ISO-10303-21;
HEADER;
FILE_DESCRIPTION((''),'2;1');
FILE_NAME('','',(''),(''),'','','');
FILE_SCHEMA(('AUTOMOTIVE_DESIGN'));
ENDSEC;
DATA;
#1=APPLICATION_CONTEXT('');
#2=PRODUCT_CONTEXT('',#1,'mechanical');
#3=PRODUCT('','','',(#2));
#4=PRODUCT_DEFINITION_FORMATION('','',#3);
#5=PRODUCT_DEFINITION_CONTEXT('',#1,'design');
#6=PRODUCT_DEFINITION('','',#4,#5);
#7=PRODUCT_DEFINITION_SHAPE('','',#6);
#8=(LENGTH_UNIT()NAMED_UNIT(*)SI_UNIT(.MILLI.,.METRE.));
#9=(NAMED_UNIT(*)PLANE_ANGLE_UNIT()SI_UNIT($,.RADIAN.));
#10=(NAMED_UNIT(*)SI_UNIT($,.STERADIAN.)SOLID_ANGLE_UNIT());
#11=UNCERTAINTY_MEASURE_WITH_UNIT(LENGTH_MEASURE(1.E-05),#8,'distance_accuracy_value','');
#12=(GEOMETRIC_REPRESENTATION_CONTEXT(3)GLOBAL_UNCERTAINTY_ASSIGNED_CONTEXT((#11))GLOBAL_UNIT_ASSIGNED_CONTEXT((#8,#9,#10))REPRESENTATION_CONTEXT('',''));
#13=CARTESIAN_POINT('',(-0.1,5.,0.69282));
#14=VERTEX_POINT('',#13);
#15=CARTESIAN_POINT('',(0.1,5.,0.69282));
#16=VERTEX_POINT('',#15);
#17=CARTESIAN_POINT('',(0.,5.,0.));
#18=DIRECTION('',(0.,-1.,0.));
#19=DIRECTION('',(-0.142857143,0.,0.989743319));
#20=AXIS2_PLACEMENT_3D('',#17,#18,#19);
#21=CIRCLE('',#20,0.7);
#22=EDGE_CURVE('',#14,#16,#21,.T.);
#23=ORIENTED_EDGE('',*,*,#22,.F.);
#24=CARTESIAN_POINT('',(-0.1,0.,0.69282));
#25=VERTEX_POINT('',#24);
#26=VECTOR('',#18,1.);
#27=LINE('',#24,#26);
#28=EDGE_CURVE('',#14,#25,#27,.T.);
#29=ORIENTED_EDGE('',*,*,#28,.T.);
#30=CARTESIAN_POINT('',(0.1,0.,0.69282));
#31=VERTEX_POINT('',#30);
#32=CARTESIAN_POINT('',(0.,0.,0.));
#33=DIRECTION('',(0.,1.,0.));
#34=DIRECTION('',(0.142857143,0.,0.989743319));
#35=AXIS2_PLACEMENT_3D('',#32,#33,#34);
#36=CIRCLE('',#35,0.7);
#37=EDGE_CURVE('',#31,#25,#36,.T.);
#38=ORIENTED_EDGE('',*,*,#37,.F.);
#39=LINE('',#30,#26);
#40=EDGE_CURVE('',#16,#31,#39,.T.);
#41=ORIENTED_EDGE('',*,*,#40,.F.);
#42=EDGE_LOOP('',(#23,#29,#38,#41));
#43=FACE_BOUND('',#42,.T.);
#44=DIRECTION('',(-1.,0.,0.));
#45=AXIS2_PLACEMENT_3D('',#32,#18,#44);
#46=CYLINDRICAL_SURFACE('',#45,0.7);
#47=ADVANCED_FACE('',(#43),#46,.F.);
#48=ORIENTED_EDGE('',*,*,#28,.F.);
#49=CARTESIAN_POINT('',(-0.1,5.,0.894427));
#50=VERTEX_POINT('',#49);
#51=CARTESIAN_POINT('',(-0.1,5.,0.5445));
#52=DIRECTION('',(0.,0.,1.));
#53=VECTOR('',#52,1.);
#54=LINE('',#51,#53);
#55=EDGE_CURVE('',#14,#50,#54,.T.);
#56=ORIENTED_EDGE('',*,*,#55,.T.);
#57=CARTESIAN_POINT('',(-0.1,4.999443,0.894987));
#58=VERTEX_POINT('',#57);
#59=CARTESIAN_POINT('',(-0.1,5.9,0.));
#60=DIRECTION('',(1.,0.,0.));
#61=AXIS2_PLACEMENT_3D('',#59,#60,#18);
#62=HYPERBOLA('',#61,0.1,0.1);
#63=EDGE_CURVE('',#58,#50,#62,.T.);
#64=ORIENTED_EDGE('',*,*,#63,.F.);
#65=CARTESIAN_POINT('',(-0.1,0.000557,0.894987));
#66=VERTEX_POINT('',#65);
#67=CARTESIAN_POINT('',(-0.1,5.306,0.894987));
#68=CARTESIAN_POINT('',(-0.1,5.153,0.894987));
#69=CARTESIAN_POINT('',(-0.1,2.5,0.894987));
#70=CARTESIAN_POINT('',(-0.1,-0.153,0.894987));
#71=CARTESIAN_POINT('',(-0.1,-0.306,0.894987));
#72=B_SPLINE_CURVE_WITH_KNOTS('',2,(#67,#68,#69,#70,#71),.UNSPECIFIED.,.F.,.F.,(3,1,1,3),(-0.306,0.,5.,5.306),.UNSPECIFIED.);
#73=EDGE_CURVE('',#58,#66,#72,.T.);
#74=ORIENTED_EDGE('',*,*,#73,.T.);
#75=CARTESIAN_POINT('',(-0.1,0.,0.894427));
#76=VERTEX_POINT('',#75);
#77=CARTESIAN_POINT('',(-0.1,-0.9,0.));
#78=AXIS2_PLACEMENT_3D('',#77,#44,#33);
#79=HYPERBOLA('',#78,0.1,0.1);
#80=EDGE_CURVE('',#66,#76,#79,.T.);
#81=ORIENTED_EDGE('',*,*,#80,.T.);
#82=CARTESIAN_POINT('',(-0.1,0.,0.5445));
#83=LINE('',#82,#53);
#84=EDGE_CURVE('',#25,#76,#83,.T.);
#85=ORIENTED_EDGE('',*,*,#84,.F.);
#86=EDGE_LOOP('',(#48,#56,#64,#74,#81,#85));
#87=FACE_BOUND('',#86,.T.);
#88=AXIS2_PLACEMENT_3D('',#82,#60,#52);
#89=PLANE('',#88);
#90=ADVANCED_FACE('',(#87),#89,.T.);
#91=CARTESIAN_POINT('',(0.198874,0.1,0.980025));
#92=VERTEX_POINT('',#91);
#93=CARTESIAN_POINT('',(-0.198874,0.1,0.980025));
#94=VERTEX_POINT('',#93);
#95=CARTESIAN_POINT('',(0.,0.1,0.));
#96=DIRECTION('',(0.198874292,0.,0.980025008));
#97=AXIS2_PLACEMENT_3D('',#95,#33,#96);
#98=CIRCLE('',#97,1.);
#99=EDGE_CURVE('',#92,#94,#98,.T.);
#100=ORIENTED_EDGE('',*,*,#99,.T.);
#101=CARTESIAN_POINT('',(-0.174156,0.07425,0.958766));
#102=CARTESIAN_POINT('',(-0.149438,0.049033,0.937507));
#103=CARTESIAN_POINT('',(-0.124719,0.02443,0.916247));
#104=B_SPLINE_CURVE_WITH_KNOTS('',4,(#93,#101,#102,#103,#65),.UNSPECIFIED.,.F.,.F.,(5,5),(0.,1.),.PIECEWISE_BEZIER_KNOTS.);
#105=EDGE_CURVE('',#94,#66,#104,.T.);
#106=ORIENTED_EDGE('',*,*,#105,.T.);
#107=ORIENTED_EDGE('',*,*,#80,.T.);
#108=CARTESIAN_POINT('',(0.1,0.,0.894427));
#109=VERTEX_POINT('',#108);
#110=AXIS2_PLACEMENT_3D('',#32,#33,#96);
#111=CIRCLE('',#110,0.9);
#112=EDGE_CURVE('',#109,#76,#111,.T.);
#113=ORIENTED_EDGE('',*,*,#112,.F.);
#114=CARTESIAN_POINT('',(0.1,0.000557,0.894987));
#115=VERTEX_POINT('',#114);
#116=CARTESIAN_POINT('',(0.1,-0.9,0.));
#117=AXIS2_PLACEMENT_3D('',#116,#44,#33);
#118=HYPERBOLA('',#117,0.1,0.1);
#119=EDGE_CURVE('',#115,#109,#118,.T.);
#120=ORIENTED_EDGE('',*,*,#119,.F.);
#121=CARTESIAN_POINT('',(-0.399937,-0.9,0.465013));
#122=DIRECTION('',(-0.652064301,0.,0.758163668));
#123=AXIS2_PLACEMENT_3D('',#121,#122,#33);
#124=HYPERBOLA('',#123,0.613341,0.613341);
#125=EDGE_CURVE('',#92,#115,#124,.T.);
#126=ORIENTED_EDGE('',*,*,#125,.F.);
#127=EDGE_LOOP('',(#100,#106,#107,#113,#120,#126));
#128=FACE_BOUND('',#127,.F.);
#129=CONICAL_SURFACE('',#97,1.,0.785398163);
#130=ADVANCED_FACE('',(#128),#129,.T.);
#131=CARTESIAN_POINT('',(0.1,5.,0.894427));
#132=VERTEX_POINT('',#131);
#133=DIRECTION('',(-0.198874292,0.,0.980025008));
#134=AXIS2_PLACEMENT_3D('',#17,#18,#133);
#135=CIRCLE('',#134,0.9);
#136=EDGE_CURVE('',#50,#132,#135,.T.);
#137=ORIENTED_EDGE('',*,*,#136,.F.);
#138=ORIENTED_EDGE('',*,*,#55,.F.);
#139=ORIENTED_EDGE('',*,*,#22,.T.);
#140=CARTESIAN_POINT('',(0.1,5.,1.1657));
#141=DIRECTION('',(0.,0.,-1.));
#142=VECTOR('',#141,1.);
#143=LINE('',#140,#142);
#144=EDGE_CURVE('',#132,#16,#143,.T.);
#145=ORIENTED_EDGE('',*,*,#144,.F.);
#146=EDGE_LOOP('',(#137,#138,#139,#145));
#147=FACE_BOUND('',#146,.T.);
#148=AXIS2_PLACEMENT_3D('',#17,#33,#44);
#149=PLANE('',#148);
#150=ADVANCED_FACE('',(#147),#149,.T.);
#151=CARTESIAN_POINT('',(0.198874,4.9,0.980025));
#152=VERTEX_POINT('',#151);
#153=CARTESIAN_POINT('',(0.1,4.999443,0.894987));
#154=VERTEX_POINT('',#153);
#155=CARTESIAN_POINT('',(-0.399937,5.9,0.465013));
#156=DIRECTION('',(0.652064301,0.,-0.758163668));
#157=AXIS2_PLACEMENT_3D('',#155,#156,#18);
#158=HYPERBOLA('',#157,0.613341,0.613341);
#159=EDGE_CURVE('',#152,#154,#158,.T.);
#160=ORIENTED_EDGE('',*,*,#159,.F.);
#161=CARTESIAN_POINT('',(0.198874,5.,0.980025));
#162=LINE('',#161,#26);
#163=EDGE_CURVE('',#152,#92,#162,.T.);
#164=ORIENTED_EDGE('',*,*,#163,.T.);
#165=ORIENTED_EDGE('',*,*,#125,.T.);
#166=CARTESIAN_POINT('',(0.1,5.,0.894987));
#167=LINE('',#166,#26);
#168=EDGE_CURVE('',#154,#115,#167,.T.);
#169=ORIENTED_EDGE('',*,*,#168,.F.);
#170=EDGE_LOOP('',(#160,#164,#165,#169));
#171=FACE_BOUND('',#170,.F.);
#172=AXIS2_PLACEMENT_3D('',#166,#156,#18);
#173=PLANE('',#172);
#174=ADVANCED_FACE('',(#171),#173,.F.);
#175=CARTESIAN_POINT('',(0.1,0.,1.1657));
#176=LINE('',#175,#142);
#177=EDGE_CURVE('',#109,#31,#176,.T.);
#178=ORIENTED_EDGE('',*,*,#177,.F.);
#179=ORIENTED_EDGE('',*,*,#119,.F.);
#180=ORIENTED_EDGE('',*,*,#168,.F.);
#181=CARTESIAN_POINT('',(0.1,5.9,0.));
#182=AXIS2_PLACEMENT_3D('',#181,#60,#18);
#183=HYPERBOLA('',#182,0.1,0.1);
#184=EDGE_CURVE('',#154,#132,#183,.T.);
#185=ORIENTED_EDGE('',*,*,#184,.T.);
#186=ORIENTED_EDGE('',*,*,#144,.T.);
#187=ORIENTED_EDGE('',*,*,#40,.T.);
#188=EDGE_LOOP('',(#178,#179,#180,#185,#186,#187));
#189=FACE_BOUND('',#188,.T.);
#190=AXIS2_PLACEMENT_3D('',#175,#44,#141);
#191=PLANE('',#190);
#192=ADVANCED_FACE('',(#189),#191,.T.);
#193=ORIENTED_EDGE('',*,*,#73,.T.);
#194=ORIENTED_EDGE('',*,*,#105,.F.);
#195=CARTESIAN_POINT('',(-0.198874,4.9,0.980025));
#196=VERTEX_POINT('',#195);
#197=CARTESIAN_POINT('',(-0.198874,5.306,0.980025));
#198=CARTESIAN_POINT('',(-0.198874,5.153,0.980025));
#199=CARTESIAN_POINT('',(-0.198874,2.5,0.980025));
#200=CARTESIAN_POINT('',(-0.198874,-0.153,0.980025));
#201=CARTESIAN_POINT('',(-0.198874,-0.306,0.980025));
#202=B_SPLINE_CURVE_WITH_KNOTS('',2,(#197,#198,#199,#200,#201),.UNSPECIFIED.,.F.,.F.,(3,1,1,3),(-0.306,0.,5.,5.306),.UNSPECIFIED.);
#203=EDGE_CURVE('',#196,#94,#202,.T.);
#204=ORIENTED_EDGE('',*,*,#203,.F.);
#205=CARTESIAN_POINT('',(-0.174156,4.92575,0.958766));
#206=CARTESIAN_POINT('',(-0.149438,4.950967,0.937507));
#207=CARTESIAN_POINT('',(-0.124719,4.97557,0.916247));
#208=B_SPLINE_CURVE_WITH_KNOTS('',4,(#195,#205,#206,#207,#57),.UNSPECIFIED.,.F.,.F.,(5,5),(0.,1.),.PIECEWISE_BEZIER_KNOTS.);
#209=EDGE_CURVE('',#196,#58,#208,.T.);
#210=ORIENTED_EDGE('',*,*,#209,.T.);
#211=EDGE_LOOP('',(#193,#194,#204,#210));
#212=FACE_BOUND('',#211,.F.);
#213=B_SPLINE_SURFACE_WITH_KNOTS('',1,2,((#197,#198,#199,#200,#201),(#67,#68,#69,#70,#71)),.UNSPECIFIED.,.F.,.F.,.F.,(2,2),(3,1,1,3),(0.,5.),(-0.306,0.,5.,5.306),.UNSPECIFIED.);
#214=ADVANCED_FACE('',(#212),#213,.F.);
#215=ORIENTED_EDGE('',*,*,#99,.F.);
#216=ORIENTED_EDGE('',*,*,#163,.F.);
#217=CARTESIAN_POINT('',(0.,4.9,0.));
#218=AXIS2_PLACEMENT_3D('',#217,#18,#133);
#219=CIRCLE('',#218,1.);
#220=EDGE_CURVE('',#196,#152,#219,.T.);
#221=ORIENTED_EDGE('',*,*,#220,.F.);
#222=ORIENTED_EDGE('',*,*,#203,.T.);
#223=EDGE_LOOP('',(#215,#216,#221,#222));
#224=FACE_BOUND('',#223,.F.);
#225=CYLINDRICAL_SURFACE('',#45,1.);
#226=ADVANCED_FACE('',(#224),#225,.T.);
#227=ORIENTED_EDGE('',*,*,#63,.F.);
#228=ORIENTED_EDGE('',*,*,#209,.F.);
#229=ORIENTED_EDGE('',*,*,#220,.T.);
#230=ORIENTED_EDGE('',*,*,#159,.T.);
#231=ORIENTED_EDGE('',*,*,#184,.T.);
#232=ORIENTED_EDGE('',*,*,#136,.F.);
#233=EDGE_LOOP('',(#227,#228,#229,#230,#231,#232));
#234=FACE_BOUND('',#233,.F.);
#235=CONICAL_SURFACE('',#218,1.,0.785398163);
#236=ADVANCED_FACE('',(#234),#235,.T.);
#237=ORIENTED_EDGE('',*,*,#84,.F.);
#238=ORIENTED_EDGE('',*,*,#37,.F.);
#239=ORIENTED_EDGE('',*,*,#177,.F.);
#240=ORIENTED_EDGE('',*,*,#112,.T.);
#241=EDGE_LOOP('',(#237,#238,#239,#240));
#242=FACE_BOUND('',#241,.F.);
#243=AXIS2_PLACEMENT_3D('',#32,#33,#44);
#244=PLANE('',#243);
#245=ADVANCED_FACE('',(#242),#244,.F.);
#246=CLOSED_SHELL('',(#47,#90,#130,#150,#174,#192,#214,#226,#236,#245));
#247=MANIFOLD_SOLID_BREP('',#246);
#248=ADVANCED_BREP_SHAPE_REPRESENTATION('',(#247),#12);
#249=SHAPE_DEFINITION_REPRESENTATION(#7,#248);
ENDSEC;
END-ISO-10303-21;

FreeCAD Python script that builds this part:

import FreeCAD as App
import Part
import Sketcher
from FreeCAD import Vector


def edges_at(feature, points):
    """Names of the edges that pass closest to the given points."""
    edges = feature.Shape.Edges
    near = lambda p: min(range(len(edges)), key=lambda i: edges[i].distToShape(Part.Vertex(*p))[0])
    return sorted({f"Edge{near(p) + 1}" for p in points})


def add_polygon(sketch, points):
    """Adds a closed chain of lines whose ends are joined by coincident constraints."""
    first, n = sketch.GeometryCount, len(points)
    for a, b in zip(points, points[1:] + points[:1]):
        sketch.addGeometry(Part.LineSegment(App.Vector(*a, 0), App.Vector(*b, 0)), False)
    for i in range(n):
        sketch.addConstraint(Sketcher.Constraint("Coincident", first + i, 2, first + (i + 1) % n, 1))

doc = App.newDocument("Part")
body = doc.addObject("PartDesign::Body", "Body")

# Sketch on XZ plane
sketch1 = body.newObject("Sketcher::SketchObject", "Sketch")
sketch1.AttachmentSupport = (doc.getObject("XZ_Plane"), [""])
sketch1.MapMode = "FlatFace"
sketch1.addGeometry([
    Part.Circle(Vector(0, 0, 0), Vector(0, 0, 1), 1),
    Part.Circle(Vector(0, 0, 0), Vector(0, 0, 1), 0.7),
], False)
sketch1.addConstraint([
    Sketcher.Constraint("Coincident", 0, 3, -1, 1),
    Sketcher.Constraint("Coincident", 1, 3, -1, 1),
    Sketcher.Constraint("Diameter", 0, 2.0),
    Sketcher.Constraint("Diameter", 1, 1.4),
])
pad1 = body.newObject("PartDesign::Pad", "Pad")
pad1.Profile = sketch1
pad1.Length = 5
pad1.Reversed = True

# Sketch on XZ plane
sketch2 = body.newObject("Sketcher::SketchObject", "Sketch001")
sketch2.AttachmentSupport = (doc.getObject("XZ_Plane"), [""])
sketch2.MapMode = "FlatFace"
add_polygon(sketch2, [(0.1, 1.17), (-0.1, 1.17), (-0.1, 0.54), (0.1, 0.54)])  # lines 0-3
sketch2.addConstraint([
    Sketcher.Constraint("Horizontal", 0),
    Sketcher.Constraint("Vertical", 1),
    Sketcher.Constraint("Horizontal", 2),
    Sketcher.Constraint("Vertical", 3),
    Sketcher.Constraint("DistanceX", 0, 2, 0, 1, 0.2),
    Sketcher.Constraint("DistanceX", 0, 2, -1, 1, 0.1),
    Sketcher.Constraint("DistanceY", 1, 2, 1, 1, 0.6212),
    Sketcher.Constraint("DistanceY", -1, 1, 0, 2, 1.1657),
])
pocket1 = body.newObject("PartDesign::Pocket", "Pocket")
pocket1.Profile = sketch2
pocket1.Length = 5
doc.recompute()

chamfer = body.newObject("PartDesign::Chamfer", "Chamfer")
chamfer.Base = (pocket1, edges_at(pocket1, [(-0.1, 2.5, 0.995), (0.1, 2.5, 0.995)]))
chamfer.Size = 0.1
doc.recompute()

chamfer2 = body.newObject("PartDesign::Chamfer", "Chamfer001")
chamfer2.Base = (chamfer, edges_at(chamfer, [(0, 0, -1), (0, 5, -1)]))
chamfer2.Size = 0.1

doc.recompute()
